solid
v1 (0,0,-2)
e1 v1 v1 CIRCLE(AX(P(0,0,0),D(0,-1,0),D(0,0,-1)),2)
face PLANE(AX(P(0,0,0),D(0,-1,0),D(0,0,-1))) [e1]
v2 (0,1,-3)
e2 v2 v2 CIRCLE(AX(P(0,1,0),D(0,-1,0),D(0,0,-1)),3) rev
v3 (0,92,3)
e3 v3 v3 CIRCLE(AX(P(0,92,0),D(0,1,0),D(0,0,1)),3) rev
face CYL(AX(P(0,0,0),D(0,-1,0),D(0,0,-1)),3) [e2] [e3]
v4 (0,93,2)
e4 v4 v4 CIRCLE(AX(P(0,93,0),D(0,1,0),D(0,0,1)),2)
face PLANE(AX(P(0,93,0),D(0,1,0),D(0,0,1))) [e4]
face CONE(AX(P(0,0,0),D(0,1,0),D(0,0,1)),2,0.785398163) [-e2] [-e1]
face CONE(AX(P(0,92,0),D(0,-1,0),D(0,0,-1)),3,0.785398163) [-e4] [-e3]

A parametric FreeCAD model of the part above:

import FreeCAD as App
import Part
import Sketcher
from FreeCAD import Vector


def edges_at(feature, points):
    """Names of the edges that pass closest to the given points."""
    edges = feature.Shape.Edges
    near = lambda p: min(range(len(edges)), key=lambda i: edges[i].distToShape(Part.Vertex(*p))[0])
    return sorted({f"Edge{near(p) + 1}" for p in points})


def add_polygon(sketch, points):
    """Adds a closed chain of lines whose ends are joined by coincident constraints."""
    first, n = sketch.GeometryCount, len(points)
    for a, b in zip(points, points[1:] + points[:1]):
        sketch.addGeometry(Part.LineSegment(App.Vector(*a, 0), App.Vector(*b, 0)), False)
    for i in range(n):
        sketch.addConstraint(Sketcher.Constraint("Coincident", first + i, 2, first + (i + 1) % n, 1))

doc = App.newDocument("Part")
body = doc.addObject("PartDesign::Body", "Body")

# Sketch on XY plane
sketch1 = body.newObject("Sketcher::SketchObject", "Sketch")
sketch1.AttachmentSupport = (doc.getObject("XY_Plane"), [""])
sketch1.MapMode = "FlatFace"
add_polygon(sketch1, [(0, 93), (0, 0), (3, 0), (3, 93)])  # lines 0-3
sketch1.addConstraint([
    Sketcher.Constraint("Vertical", 0),
    Sketcher.Constraint("Horizontal", 1),
    Sketcher.Constraint("Vertical", 2),
    Sketcher.Constraint("Horizontal", 3),
    Sketcher.Constraint("Coincident", 0, 2, -1, 1),
    Sketcher.Constraint("DistanceX", 1, 1, 1, 2, 3.0),
    Sketcher.Constraint("DistanceY", 0, 2, 0, 1, 93.0),
])
revolution = body.newObject("PartDesign::Revolution", "Revolution")
revolution.Profile = sketch1
revolution.ReferenceAxis = (sketch1, ["V_Axis"])
revolution.Angle = 360
doc.recompute()

chamfer = body.newObject("PartDesign::Chamfer", "Chamfer")
chamfer.Base = (revolution, edges_at(revolution, [(0, 0, 3), (0, 93, 3)]))
chamfer.Size = 1

doc.recompute()
